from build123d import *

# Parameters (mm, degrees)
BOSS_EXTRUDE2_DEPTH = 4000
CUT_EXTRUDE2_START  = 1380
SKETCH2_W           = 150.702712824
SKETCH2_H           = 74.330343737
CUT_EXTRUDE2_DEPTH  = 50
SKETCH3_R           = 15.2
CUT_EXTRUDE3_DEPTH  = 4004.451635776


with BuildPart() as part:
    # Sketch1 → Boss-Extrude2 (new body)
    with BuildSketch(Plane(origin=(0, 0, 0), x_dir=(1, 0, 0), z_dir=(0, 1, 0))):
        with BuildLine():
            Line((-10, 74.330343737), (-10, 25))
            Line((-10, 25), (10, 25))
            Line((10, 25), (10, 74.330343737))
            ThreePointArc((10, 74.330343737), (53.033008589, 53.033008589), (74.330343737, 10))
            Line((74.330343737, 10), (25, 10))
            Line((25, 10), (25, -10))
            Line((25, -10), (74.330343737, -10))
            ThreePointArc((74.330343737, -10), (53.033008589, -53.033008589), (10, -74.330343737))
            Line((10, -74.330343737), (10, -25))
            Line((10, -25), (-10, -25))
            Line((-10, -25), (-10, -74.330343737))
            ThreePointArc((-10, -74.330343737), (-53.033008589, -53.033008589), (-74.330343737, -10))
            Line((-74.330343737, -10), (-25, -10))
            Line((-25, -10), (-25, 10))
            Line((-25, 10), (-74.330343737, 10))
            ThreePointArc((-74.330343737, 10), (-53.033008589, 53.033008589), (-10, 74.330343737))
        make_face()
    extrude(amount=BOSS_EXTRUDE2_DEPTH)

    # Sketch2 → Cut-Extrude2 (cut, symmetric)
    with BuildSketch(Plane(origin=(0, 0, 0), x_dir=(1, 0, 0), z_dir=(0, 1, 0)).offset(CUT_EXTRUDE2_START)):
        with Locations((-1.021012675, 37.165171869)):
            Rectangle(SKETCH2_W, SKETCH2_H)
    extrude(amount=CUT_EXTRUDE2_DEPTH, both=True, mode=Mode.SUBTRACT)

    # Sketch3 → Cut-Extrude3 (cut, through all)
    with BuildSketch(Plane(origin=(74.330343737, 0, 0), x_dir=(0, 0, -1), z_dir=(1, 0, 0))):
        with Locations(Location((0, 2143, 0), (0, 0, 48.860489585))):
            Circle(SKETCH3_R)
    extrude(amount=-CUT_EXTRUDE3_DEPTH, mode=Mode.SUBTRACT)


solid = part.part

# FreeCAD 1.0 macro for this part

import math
import FreeCAD as App
import Part
import Sketcher
from FreeCAD import Vector


def add_polygon(sketch, points):
    """Adds a closed chain of lines whose ends are joined by coincident constraints."""
    first, n = sketch.GeometryCount, len(points)
    for a, b in zip(points, points[1:] + points[:1]):
        sketch.addGeometry(Part.LineSegment(App.Vector(*a, 0), App.Vector(*b, 0)), False)
    for i in range(n):
        sketch.addConstraint(Sketcher.Constraint("Coincident", first + i, 2, first + (i + 1) % n, 1))

doc = App.newDocument("Part")
params = doc.addObject("Spreadsheet::Sheet", "Params")
for row, (alias, value) in enumerate([
    ("sketch1_radius", "75 mm"),
    ("sketch1_width", "20 mm"),
    ("pad1_length", "4000 mm"),
    ("pocket1_length", "100 mm"),
    ("sketch3_diameter", "30.4 mm"),
], start=1):
    params.set(f"A{row}", alias)
    params.set(f"B{row}", "=" + value)
    params.setAlias(f"B{row}", alias)

body = doc.addObject("PartDesign::Body", "Body")

sketch1 = body.newObject("Sketcher::SketchObject", "Sketch")
sketch1.AttachmentSupport = (doc.getObject("XZ_Plane"), [""])
sketch1.MapMode = "FlatFace"
sketch1.addGeometry(Part.LineSegment(Vector(-10, -25, 0), Vector(-10, -74, 0)), False)
sketch1.addGeometry(Part.ArcOfCircle(Part.Circle(Vector(0, 0, 0), Vector(0, 0, 1), 75), math.radians(-172), math.radians(-98)), False)
sketch1.addGeometry(Part.LineSegment(Vector(-74, -10, 0), Vector(-25, -10, 0)), False)
sketch1.addGeometry(Part.LineSegment(Vector(-25, -10, 0), Vector(-25, 10, 0)), False)
sketch1.addGeometry(Part.LineSegment(Vector(-25, 10, 0), Vector(-74, 10, 0)), False)
sketch1.addGeometry(Part.ArcOfCircle(Part.Circle(Vector(0, 0, 0), Vector(0, 0, 1), 75), math.radians(98), math.radians(172)), False)
sketch1.addGeometry(Part.LineSegment(Vector(-10, 74, 0), Vector(-10, 25, 0)), False)
sketch1.addGeometry(Part.LineSegment(Vector(-10, 25, 0), Vector(10, 25, 0)), False)
sketch1.addGeometry(Part.LineSegment(Vector(10, 25, 0), Vector(10, 74, 0)), False)
sketch1.addGeometry(Part.ArcOfCircle(Part.Circle(Vector(0, 0, 0), Vector(0, 0, 1), 75), math.radians(8), math.radians(82)), False)
sketch1.addGeometry(Part.LineSegment(Vector(74, 10, 0), Vector(25, 10, 0)), False)
sketch1.addGeometry(Part.LineSegment(Vector(25, 10, 0), Vector(25, -10, 0)), False)
sketch1.addGeometry(Part.LineSegment(Vector(25, -10, 0), Vector(74, -10, 0)), False)
sketch1.addGeometry(Part.ArcOfCircle(Part.Circle(Vector(0, 0, 0), Vector(0, 0, 1), 75), math.radians(-82), math.radians(-8)), False)
sketch1.addGeometry(Part.LineSegment(Vector(10, -74, 0), Vector(10, -25, 0)), False)
sketch1.addGeometry(Part.LineSegment(Vector(10, -25, 0), Vector(-10, -25, 0)), False)
sketch1.addConstraint(Sketcher.Constraint("Coincident", 0, 2, 1, 2))
sketch1.addConstraint(Sketcher.Constraint("Coincident", 1, 1, 2, 1))
sketch1.addConstraint(Sketcher.Constraint("Coincident", 2, 2, 3, 1))
sketch1.addConstraint(Sketcher.Constraint("Coincident", 3, 2, 4, 1))
sketch1.addConstraint(Sketcher.Constraint("Coincident", 4, 2, 5, 2))
sketch1.addConstraint(Sketcher.Constraint("Coincident", 5, 1, 6, 1))
sketch1.addConstraint(Sketcher.Constraint("Coincident", 6, 2, 7, 1))
sketch1.addConstraint(Sketcher.Constraint("Coincident", 7, 2, 8, 1))
sketch1.addConstraint(Sketcher.Constraint("Coincident", 8, 2, 9, 2))
sketch1.addConstraint(Sketcher.Constraint("Coincident", 9, 1, 10, 1))
sketch1.addConstraint(Sketcher.Constraint("Coincident", 10, 2, 11, 1))
sketch1.addConstraint(Sketcher.Constraint("Coincident", 11, 2, 12, 1))
sketch1.addConstraint(Sketcher.Constraint("Coincident", 12, 2, 13, 2))
sketch1.addConstraint(Sketcher.Constraint("Coincident", 13, 1, 14, 1))
sketch1.addConstraint(Sketcher.Constraint("Coincident", 14, 2, 15, 1))
sketch1.addConstraint(Sketcher.Constraint("Coincident", 15, 2, 0, 1))
sketch1.addConstraint(Sketcher.Constraint("Vertical", 0))
sketch1.addConstraint(Sketcher.Constraint("Horizontal", 2))
sketch1.addConstraint(Sketcher.Constraint("Vertical", 3))
sketch1.addConstraint(Sketcher.Constraint("Horizontal", 4))
sketch1.addConstraint(Sketcher.Constraint("Vertical", 6))
sketch1.addConstraint(Sketcher.Constraint("Horizontal", 7))
sketch1.addConstraint(Sketcher.Constraint("Vertical", 8))
sketch1.addConstraint(Sketcher.Constraint("Horizontal", 10))
sketch1.addConstraint(Sketcher.Constraint("Vertical", 11))
sketch1.addConstraint(Sketcher.Constraint("Horizontal", 12))
sketch1.addConstraint(Sketcher.Constraint("Vertical", 14))
sketch1.addConstraint(Sketcher.Constraint("Horizontal", 15))
sketch1.addConstraint(Sketcher.Constraint("Coincident", 1, 3, -1, 1))
sketch1.addConstraint(Sketcher.Constraint("Coincident", 5, 3, -1, 1))
sketch1.addConstraint(Sketcher.Constraint("Coincident", 9, 3, -1, 1))
sketch1.addConstraint(Sketcher.Constraint("Coincident", 13, 3, -1, 1))
sketch1.addConstraint(Sketcher.Constraint("Equal", 1, 5))
sketch1.addConstraint(Sketcher.Constraint("Equal", 5, 9))
sketch1.addConstraint(Sketcher.Constraint("Equal", 9, 13))
sketch1.addConstraint(Sketcher.Constraint("Symmetric", 2, 2, 10, 2, -1, 1))
sketch1.addConstraint(Sketcher.Constraint("Symmetric", 6, 2, 14, 2, -1, 1))
sketch1.addConstraint(Sketcher.Constraint("Horizontal", 5, 1, 8, 2))
sketch1.addConstraint(Sketcher.Constraint("Horizontal", 4, 2, 9, 1))
sketch1.addConstraint(Sketcher.Constraint("Horizontal", 2, 2, 11, 2))
sketch1.addConstraint(Sketcher.Constraint("Horizontal", 0, 2, 13, 1))
sketch1.addConstraint(Sketcher.Constraint("Equal", 12, 0))
sketch1.addConstraint(Sketcher.Constraint("Equal", 15, 3))
sketch1.addConstraint(Sketcher.Constraint("Radius", 1, 75.0))
sketch1.addConstraint(Sketcher.Constraint("DistanceX", 7, 1, 7, 2, 20.0))
sketch1.addConstraint(Sketcher.Constraint("DistanceX", 2, 2, -1, 1, 25.0))
sketch1.setExpression("Constraints[43]", "Params.sketch1_radius")
sketch1.setExpression("Constraints[44]", "Params.sketch1_width")
pad1 = body.newObject("PartDesign::Pad", "Pad")
pad1.Profile = sketch1
pad1.setExpression("Length", "Params.pad1_length")
pad1.Reversed = True

sketch2 = body.newObject("Sketcher::SketchObject", "Sketch001")
sketch2.AttachmentSupport = (doc.getObject("XZ_Plane"), [""])
sketch2.MapMode = "FlatFace"
sketch2.AttachmentOffset = App.Placement(Vector(0, 0, -1380), App.Rotation())
add_polygon(sketch2, [(-76, -74), (-76, 0), (74, 0), (74, -74)])
sketch2.addConstraint(Sketcher.Constraint("Vertical", 0))
sketch2.addConstraint(Sketcher.Constraint("Horizontal", 1))
sketch2.addConstraint(Sketcher.Constraint("Vertical", 2))
sketch2.addConstraint(Sketcher.Constraint("Horizontal", 3))
sketch2.addConstraint(Sketcher.Constraint("PointOnObject", 0, 2, -1))
sketch2.addConstraint(Sketcher.Constraint("DistanceX", 1, 1, 1, 2, 150.702713))
sketch2.addConstraint(Sketcher.Constraint("DistanceY", 0, 1, 0, 2, 74.330344))
sketch2.addConstraint(Sketcher.Constraint("DistanceX", 0, 2, -1, 1, 76.372369))
pocket1 = body.newObject("PartDesign::Pocket", "Pocket")
pocket1.Profile = sketch2
pocket1.setExpression("Length", "Params.pocket1_length")
pocket1.Midplane = True

sketch3 = body.newObject("Sketcher::SketchObject", "Sketch002")
sketch3.AttachmentSupport = (doc.getObject("YZ_Plane"), [""])
sketch3.MapMode = "FlatFace"
sketch3.AttachmentOffset = App.Placement(Vector(0, 0, 74.330344), App.Rotation())
sketch3.addGeometry(Part.Circle(Vector(2143, 0, 0), Vector(0, 0, 1), 15), False)
sketch3.addConstraint(Sketcher.Constraint("PointOnObject", 0, 3, -1))
sketch3.addConstraint(Sketcher.Constraint("Diameter", 0, 30.4))
sketch3.addConstraint(Sketcher.Constraint("DistanceX", -1, 1, 0, 3, 2143.0))
sketch3.setExpression("Constraints[1]", "Params.sketch3_diameter")
pocket2 = body.newObject("PartDesign::Pocket", "Pocket001")
pocket2.Profile = sketch3
pocket2.Type = "ThroughAll"

doc.recompute()
